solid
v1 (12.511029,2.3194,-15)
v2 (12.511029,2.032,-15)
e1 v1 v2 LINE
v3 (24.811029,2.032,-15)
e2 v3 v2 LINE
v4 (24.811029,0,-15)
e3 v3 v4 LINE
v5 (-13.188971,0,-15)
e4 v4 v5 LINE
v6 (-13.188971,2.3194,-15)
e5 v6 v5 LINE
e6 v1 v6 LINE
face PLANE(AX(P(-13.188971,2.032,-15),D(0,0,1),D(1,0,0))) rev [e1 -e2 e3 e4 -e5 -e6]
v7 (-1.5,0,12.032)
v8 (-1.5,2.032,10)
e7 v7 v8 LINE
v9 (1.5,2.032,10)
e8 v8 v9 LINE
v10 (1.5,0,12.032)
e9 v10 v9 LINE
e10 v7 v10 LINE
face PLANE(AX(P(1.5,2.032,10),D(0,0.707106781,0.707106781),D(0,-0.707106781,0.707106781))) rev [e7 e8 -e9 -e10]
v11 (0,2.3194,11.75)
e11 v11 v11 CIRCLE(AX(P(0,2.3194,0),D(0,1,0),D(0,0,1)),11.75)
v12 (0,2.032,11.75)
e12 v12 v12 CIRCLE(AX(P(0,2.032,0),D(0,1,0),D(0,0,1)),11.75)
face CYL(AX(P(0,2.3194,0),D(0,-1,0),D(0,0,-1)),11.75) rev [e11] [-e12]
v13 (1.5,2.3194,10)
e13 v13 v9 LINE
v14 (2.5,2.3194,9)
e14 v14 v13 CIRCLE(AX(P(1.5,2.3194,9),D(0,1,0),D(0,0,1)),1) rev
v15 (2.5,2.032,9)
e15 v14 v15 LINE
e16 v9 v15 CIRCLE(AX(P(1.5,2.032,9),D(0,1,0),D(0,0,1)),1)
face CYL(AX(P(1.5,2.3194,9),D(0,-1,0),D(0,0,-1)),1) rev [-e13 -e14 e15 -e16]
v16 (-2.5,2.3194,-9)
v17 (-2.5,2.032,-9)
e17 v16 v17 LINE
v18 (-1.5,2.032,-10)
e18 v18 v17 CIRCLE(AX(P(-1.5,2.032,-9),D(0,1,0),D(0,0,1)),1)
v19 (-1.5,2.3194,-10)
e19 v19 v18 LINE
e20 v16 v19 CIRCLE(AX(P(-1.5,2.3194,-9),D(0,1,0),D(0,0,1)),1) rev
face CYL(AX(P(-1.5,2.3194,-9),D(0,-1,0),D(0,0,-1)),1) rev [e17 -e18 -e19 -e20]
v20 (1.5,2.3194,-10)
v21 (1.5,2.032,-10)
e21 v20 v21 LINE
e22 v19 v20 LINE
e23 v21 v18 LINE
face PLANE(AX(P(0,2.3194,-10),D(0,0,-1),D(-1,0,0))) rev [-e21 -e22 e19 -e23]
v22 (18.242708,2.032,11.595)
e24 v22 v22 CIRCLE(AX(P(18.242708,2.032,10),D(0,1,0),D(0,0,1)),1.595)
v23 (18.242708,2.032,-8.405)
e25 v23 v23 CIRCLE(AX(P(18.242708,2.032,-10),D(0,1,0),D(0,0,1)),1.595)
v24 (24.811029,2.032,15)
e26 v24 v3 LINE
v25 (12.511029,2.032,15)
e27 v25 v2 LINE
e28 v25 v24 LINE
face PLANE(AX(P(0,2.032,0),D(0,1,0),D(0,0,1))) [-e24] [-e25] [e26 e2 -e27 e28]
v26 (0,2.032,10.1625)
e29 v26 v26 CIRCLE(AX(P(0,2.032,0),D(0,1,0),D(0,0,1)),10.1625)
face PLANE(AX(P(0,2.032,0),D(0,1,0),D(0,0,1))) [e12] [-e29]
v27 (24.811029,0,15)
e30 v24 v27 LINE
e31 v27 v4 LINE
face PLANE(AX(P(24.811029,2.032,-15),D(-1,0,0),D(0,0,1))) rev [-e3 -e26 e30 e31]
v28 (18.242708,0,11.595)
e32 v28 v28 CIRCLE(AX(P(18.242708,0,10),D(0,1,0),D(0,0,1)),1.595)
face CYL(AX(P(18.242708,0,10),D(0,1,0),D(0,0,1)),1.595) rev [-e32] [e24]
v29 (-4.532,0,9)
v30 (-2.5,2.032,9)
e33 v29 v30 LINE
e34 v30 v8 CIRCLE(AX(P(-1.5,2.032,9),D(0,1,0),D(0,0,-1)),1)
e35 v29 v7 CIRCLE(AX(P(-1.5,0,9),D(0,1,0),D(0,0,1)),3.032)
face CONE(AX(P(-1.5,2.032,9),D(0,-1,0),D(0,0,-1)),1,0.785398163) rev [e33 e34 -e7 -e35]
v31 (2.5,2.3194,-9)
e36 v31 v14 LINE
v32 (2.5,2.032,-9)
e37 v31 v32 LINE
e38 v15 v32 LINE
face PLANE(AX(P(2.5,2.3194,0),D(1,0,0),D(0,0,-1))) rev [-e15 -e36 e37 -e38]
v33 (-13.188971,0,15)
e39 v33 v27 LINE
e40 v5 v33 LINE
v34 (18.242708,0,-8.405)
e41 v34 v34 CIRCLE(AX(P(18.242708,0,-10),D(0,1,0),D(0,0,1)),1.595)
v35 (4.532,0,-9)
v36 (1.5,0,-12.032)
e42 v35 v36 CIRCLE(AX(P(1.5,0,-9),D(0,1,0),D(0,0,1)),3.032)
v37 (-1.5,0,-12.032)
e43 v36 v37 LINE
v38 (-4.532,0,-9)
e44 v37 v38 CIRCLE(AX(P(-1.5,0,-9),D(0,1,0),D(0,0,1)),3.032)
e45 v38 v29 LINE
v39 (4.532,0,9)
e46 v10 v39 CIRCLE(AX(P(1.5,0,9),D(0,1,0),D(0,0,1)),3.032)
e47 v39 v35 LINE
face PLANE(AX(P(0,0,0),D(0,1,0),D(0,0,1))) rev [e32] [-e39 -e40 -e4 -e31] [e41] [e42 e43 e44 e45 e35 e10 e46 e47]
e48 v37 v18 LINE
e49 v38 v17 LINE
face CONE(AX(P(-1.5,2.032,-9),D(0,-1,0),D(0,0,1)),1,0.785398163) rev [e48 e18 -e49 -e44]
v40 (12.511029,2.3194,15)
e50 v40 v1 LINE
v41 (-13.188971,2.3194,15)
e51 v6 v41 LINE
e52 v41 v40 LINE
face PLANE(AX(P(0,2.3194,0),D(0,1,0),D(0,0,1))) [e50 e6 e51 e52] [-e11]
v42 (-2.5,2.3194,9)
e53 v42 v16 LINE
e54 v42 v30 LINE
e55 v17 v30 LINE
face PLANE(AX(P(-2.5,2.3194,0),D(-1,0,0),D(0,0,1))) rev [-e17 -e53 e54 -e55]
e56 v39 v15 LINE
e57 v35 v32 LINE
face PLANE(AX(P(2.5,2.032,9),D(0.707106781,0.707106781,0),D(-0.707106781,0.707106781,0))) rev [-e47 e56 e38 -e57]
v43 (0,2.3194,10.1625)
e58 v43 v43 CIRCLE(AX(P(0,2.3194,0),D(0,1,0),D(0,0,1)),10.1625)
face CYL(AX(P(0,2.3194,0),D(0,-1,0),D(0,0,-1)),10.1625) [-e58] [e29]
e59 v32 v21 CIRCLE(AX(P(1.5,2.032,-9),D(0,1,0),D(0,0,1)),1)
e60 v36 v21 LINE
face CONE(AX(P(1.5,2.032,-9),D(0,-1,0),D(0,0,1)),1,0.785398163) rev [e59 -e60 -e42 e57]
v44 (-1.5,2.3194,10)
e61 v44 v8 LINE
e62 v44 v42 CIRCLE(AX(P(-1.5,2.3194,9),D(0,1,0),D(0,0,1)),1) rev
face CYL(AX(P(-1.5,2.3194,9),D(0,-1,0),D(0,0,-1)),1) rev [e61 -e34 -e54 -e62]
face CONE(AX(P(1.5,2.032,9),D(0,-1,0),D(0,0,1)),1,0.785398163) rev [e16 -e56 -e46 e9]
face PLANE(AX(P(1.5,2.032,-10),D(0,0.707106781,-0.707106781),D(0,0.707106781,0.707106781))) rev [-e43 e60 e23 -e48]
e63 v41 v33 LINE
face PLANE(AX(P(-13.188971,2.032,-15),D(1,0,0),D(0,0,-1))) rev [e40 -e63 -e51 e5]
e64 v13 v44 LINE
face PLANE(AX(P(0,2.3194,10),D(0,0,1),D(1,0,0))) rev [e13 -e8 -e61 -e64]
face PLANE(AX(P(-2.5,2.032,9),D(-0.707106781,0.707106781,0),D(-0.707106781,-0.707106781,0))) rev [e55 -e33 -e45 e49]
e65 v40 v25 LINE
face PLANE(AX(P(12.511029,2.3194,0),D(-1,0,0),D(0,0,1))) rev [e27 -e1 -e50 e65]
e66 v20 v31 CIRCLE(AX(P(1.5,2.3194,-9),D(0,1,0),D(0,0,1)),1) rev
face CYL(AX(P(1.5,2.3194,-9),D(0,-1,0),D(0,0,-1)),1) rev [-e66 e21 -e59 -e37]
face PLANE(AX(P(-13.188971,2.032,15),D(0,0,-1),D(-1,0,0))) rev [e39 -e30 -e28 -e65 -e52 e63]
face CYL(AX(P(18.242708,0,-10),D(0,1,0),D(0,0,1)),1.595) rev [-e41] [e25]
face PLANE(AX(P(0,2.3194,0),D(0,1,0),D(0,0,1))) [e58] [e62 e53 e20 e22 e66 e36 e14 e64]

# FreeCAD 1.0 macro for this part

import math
import FreeCAD as App
import Part
import Sketcher

V = App.Vector

doc = App.newDocument("Part")
params = doc.addObject("Spreadsheet::Sheet", "Params")
for row, (alias, value) in enumerate([
    ("sketch1_width", "38 mm"),
    ("sketch1_height", "30 mm"),
    ("pad1_length", "2.032 mm"),
    ("sketch2_radius", "1 mm"),
    ("sketch2_width", "3 mm"),
    ("sketch2_height", "18 mm"),
    ("pocket1_taper", "45 deg"),
    ("sketch3_diameter", "3.19 mm"),
    ("sketch4_radius", "1 mm"),
    ("sketch4_diameter", "23.5 mm"),
    ("sketch4_width", "3 mm"),
    ("sketch4_height", "30 mm"),
    ("sketch4_height2", "18 mm"),
    ("pad2_length", "0.2874 mm"),
], start=1):
    params.set(f"A{row}", alias)
    params.set(f"B{row}", "=" + value)
    params.setAlias(f"B{row}", alias)

body = doc.addObject("PartDesign::Body", "Body")

# Sketch on XZ plane
sketch1 = doc.addObject("Sketcher::SketchObject", "Sketch")
body.addObject(sketch1)
sketch1.AttachmentSupport = (doc.XZ_Plane, [""])
sketch1.MapMode = "FlatFace"
sketch1.addGeometry([
    Part.LineSegment(V(-13.188971, -15, 0), V(-13.188971, 15, 0)),
    Part.LineSegment(V(-13.188971, 15, 0), V(24.811029, 15, 0)),
    Part.LineSegment(V(24.811029, 15, 0), V(24.811029, -15, 0)),
    Part.LineSegment(V(24.811029, -15, 0), V(-13.188971, -15, 0)),
], False)
sketch1.addConstraint([
    Sketcher.Constraint("Coincident", 0, 2, 1, 1),
    Sketcher.Constraint("Coincident", 1, 2, 2, 1),
    Sketcher.Constraint("Coincident", 2, 2, 3, 1),
    Sketcher.Constraint("Coincident", 3, 2, 0, 1),
    Sketcher.Constraint("Vertical", 0),
    Sketcher.Constraint("Horizontal", 1),
    Sketcher.Constraint("Vertical", 2),
    Sketcher.Constraint("Horizontal", 3),
    Sketcher.Constraint("DistanceX", 1, 1, 1, 2, 38.0),
    Sketcher.Constraint("DistanceY", 0, 1, 0, 2, 30.0),
    Sketcher.Constraint("DistanceY", -1, 1, 0, 2, 15.0),
    Sketcher.Constraint("DistanceX", 0, 2, -1, 1, 13.188971),
])
sketch1.setExpression("Constraints[8]", "Params.sketch1_width")
sketch1.setExpression("Constraints[9]", "Params.sketch1_height")
pad1 = doc.addObject("PartDesign::Pad", "Pad")
body.addObject(pad1)
pad1.Profile = sketch1
pad1.setExpression("Length", "Params.pad1_length")
pad1.Reversed = True

# Sketch on XZ plane
sketch2 = doc.addObject("Sketcher::SketchObject", "Sketch001")
body.addObject(sketch2)
sketch2.AttachmentSupport = (doc.XZ_Plane, [""])
sketch2.MapMode = "FlatFace"
sketch2.AttachmentOffset = App.Placement(V(0, 0, -2.032), App.Rotation())
sketch2.addGeometry([
    Part.ArcOfCircle(Part.Circle(V(1.5, 9, 0), V(0, 0, 1), 1), math.radians(0), math.radians(90)),  # 0
    Part.LineSegment(V(2.5, 9, 0), V(2.5, -9, 0)),  # 1
    Part.ArcOfCircle(Part.Circle(V(1.5, -9, 0), V(0, 0, 1), 1), math.radians(-90), math.radians(0)),  # 2
    Part.LineSegment(V(1.5, -10, 0), V(-1.5, -10, 0)),  # 3
    Part.ArcOfCircle(Part.Circle(V(-1.5, -9, 0), V(0, 0, 1), 1), math.radians(-180), math.radians(-90)),  # 4
    Part.LineSegment(V(-2.5, -9, 0), V(-2.5, 9, 0)),  # 5
    Part.ArcOfCircle(Part.Circle(V(-1.5, 9, 0), V(0, 0, 1), 1), math.radians(90), math.radians(180)),  # 6
    Part.LineSegment(V(-1.5, 10, 0), V(1.5, 10, 0)),  # 7
], False)
sketch2.addConstraint([
    Sketcher.Constraint("Tangent", 0, 1, 1, 1),
    Sketcher.Constraint("Tangent", 1, 2, 2, 2),
    Sketcher.Constraint("Tangent", 2, 1, 3, 1),
    Sketcher.Constraint("Tangent", 3, 2, 4, 2),
    Sketcher.Constraint("Tangent", 4, 1, 5, 1),
    Sketcher.Constraint("Tangent", 5, 2, 6, 2),
    Sketcher.Constraint("Tangent", 6, 1, 7, 1),
    Sketcher.Constraint("Tangent", 7, 2, 0, 2),
    Sketcher.Constraint("Vertical", 1),
    Sketcher.Constraint("Horizontal", 3),
    Sketcher.Constraint("Vertical", 5),
    Sketcher.Constraint("Horizontal", 7),
    Sketcher.Constraint("Equal", 0, 2),
    Sketcher.Constraint("Equal", 2, 4),
    Sketcher.Constraint("Equal", 4, 6),
    Sketcher.Constraint("Symmetric", 0, 3, 4, 3, -1, 1),
    Sketcher.Constraint("Radius", 0, 1.0),
    Sketcher.Constraint("DistanceX", 3, 2, 3, 1, 3.0),
    Sketcher.Constraint("DistanceY", 1, 2, 1, 1, 18.0),
])
sketch2.setExpression("Constraints[16]", "Params.sketch2_radius")
sketch2.setExpression("Constraints[17]", "Params.sketch2_width")
sketch2.setExpression("Constraints[18]", "Params.sketch2_height")
pocket1 = doc.addObject("PartDesign::Pocket", "Pocket")
body.addObject(pocket1)
pocket1.Profile = sketch2
pocket1.Type = "ThroughAll"
pocket1.Reversed = True
pocket1.setExpression("TaperAngle", "Params.pocket1_taper")

# Sketch on XZ plane
sketch3 = doc.addObject("Sketcher::SketchObject", "Sketch002")
body.addObject(sketch3)
sketch3.AttachmentSupport = (doc.XZ_Plane, [""])
sketch3.MapMode = "FlatFace"
sketch3.AttachmentOffset = App.Placement(V(0, 0, -2.032), App.Rotation())
sketch3.addGeometry([
    Part.Circle(V(18.242708, 10, 0), V(0, 0, 1), 1.595),
    Part.Circle(V(18.242708, -10, 0), V(0, 0, 1), 1.595),
], False)
sketch3.addConstraint([
    Sketcher.Constraint("Equal", 0, 1),
    Sketcher.Constraint("Symmetric", 0, 3, 1, 3, -1),
    Sketcher.Constraint("Diameter", 0, 3.19),
    Sketcher.Constraint("DistanceY", -1, 1, 0, 3, 10.0),
    Sketcher.Constraint("DistanceX", -1, 1, 0, 3, 18.242708),
])
sketch3.setExpression("Constraints[2]", "Params.sketch3_diameter")
pocket2 = doc.addObject("PartDesign::Pocket", "Pocket001")
body.addObject(pocket2)
pocket2.Profile = sketch3
pocket2.Type = "ThroughAll"
pocket2.Reversed = True

# Sketch on XZ plane
sketch4 = doc.addObject("Sketcher::SketchObject", "Sketch003")
body.addObject(sketch4)
sketch4.AttachmentSupport = (doc.XZ_Plane, [""])
sketch4.MapMode = "FlatFace"
sketch4.AttachmentOffset = App.Placement(V(0, 0, -2.032), App.Rotation())
sketch4.addGeometry([
    Part.LineSegment(V(-13.188971, -15, 0), V(-13.188971, 15, 0)),  # 0
    Part.LineSegment(V(-13.188971, 15, 0), V(12.511029, 15, 0)),  # 1
    Part.LineSegment(V(12.511029, 15, 0), V(12.511029, -15, 0)),  # 2
    Part.LineSegment(V(12.511029, -15, 0), V(-13.188971, -15, 0)),  # 3
    Part.Circle(V(0, 0, 0), V(0, 0, 1), 11.75),  # 4
    Part.Circle(V(0, 0, 0), V(0, 0, 1), 10.1625),  # 5
    Part.ArcOfCircle(Part.Circle(V(1.5, 9, 0), V(0, 0, 1), 1), math.radians(0), math.radians(90)),  # 6
    Part.LineSegment(V(1.5, 10, 0), V(-1.5, 10, 0)),  # 7
    Part.ArcOfCircle(Part.Circle(V(-1.5, 9, 0), V(0, 0, 1), 1), math.radians(90), math.radians(180)),  # 8
    Part.LineSegment(V(-2.5, 9, 0), V(-2.5, -9, 0)),  # 9
    Part.ArcOfCircle(Part.Circle(V(-1.5, -9, 0), V(0, 0, 1), 1), math.radians(-180), math.radians(-90)),  # 10
    Part.LineSegment(V(-1.5, -10, 0), V(1.5, -10, 0)),  # 11
    Part.ArcOfCircle(Part.Circle(V(1.5, -9, 0), V(0, 0, 1), 1), math.radians(-90), math.radians(0)),  # 12
    Part.LineSegment(V(2.5, -9, 0), V(2.5, 9, 0)),  # 13
], False)
sketch4.addConstraint([
    Sketcher.Constraint("Coincident", 0, 2, 1, 1),
    Sketcher.Constraint("Coincident", 1, 2, 2, 1),
    Sketcher.Constraint("Coincident", 2, 2, 3, 1),
    Sketcher.Constraint("Coincident", 3, 2, 0, 1),
    Sketcher.Constraint("Tangent", 6, 2, 7, 1),
    Sketcher.Constraint("Tangent", 7, 2, 8, 1),
    Sketcher.Constraint("Tangent", 8, 2, 9, 1),
    Sketcher.Constraint("Tangent", 9, 2, 10, 1),
    Sketcher.Constraint("Tangent", 10, 2, 11, 1),
    Sketcher.Constraint("Tangent", 11, 2, 12, 1),
    Sketcher.Constraint("Tangent", 12, 2, 13, 1),
    Sketcher.Constraint("Tangent", 13, 2, 6, 1),
    Sketcher.Constraint("Vertical", 0),
    Sketcher.Constraint("Horizontal", 1),
    Sketcher.Constraint("Vertical", 2),
    Sketcher.Constraint("Horizontal", 3),
    Sketcher.Constraint("Horizontal", 7),
    Sketcher.Constraint("Vertical", 9),
    Sketcher.Constraint("Horizontal", 11),
    Sketcher.Constraint("Vertical", 13),
    Sketcher.Constraint("Coincident", 4, 3, -1, 1),
    Sketcher.Constraint("Coincident", 5, 3, -1, 1),
    Sketcher.Constraint("Equal", 6, 8),
    Sketcher.Constraint("Equal", 8, 10),
    Sketcher.Constraint("Equal", 10, 12),
    Sketcher.Constraint("Symmetric", 6, 3, 10, 3, -1, 1),
    Sketcher.Constraint("Radius", 6, 1.0),
    Sketcher.Constraint("Diameter", 4, 23.5),
    Sketcher.Constraint("DistanceX", 7, 2, 7, 1, 3.0),
    Sketcher.Constraint("DistanceY", 0, 1, 0, 2, 30.0),
    Sketcher.Constraint("DistanceY", 9, 2, 9, 1, 18.0),
    Sketcher.Constraint("Diameter", 5, 20.325),
    Sketcher.Constraint("DistanceX", 1, 1, 1, 2, 25.7),
    Sketcher.Constraint("DistanceY", -1, 1, 0, 2, 15.0),
    Sketcher.Constraint("DistanceX", 0, 2, -1, 1, 13.188971),
])
sketch4.setExpression("Constraints[26]", "Params.sketch4_radius")
sketch4.setExpression("Constraints[27]", "Params.sketch4_diameter")
sketch4.setExpression("Constraints[28]", "Params.sketch4_width")
sketch4.setExpression("Constraints[29]", "Params.sketch4_height")
sketch4.setExpression("Constraints[30]", "Params.sketch4_height2")
pad2 = doc.addObject("PartDesign::Pad", "Pad001")
body.addObject(pad2)
pad2.Profile = sketch4
pad2.setExpression("Length", "Params.pad2_length")
pad2.Reversed = True

doc.recompute()
